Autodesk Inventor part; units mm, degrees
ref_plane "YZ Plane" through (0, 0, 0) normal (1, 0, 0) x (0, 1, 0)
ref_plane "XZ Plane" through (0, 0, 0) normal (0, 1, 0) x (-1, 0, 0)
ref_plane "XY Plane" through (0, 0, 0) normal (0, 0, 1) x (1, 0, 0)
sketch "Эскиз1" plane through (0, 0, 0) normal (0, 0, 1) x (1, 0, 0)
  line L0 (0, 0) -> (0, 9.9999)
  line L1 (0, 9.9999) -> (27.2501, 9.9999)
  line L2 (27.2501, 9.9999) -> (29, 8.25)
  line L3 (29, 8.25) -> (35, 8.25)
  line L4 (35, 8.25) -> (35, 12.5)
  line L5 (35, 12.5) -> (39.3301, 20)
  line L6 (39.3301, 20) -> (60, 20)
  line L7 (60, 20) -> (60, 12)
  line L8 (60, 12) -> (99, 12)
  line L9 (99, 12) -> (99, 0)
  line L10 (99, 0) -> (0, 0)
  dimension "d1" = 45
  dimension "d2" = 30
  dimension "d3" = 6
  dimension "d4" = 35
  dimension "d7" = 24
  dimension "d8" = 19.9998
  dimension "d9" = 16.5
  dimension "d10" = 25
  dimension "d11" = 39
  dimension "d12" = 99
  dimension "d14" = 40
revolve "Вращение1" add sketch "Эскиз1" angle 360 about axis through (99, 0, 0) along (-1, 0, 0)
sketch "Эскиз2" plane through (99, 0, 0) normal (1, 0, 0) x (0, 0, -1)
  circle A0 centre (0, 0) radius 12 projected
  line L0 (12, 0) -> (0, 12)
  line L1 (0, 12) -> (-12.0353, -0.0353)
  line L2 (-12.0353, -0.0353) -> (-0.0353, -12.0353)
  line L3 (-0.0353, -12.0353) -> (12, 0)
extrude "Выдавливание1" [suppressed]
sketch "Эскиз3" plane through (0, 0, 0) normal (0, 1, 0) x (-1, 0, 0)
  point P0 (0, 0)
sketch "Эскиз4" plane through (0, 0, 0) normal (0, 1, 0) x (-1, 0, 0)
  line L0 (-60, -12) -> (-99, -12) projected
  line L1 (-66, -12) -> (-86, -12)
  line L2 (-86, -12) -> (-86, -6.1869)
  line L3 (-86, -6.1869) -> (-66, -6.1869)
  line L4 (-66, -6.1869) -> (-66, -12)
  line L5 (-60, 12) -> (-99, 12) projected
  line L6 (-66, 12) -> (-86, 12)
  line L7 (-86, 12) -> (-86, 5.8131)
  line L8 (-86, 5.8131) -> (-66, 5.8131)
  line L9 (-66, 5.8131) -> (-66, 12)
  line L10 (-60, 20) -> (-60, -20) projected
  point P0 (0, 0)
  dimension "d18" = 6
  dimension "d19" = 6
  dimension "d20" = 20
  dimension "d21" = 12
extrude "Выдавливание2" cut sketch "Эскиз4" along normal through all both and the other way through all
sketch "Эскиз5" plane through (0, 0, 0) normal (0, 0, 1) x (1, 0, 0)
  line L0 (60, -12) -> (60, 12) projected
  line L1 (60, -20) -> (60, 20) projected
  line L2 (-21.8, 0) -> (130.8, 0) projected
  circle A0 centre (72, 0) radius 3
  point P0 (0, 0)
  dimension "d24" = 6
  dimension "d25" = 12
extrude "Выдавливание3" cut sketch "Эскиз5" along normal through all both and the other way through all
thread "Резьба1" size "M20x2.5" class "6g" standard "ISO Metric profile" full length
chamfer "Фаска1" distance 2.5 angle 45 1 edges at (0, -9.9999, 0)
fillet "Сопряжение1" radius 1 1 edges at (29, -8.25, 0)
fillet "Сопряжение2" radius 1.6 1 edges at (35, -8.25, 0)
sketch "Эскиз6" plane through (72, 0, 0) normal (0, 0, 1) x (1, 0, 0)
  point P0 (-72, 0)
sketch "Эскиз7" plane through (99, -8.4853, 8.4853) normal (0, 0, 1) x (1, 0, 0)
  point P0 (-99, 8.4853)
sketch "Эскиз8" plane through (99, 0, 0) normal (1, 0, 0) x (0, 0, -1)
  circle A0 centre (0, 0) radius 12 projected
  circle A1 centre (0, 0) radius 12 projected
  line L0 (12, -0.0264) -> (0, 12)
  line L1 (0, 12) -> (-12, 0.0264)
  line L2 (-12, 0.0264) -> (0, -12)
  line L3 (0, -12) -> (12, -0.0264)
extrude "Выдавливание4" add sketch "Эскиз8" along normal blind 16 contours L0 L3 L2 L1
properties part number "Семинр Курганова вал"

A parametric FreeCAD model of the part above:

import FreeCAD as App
import Part
import Sketcher
Q = App.Units.Quantity


def edges_at(feature, points):
    """Names of the edges that pass closest to the given points."""
    edges = feature.Shape.Edges
    near = lambda p: min(range(len(edges)), key=lambda i: edges[i].distToShape(Part.Vertex(*p))[0])
    return sorted({f"Edge{near(p) + 1}" for p in points})

doc = App.newDocument("Part")
body = doc.addObject("PartDesign::Body", "Body")

sketch1 = body.newObject("Sketcher::SketchObject", "Sketch")
sketch1.AttachmentSupport = (doc.getObject("XY_Plane"), [""])
sketch1.MapMode = "FlatFace"
sketch1.addGeometry(Part.LineSegment(App.Vector(0, 10, 0), App.Vector(0, 0, 0)), False)
sketch1.addGeometry(Part.LineSegment(App.Vector(0, 0, 0), App.Vector(99, 0, 0)), False)
sketch1.addGeometry(Part.LineSegment(App.Vector(99, 0, 0), App.Vector(99, 12, 0)), False)
sketch1.addGeometry(Part.LineSegment(App.Vector(99, 12, 0), App.Vector(60, 12, 0)), False)
sketch1.addGeometry(Part.LineSegment(App.Vector(60, 12, 0), App.Vector(60, 20, 0)), False)
sketch1.addGeometry(Part.LineSegment(App.Vector(60, 20, 0), App.Vector(39.3, 20, 0)), False)
sketch1.addGeometry(Part.LineSegment(App.Vector(39.3, 20, 0), App.Vector(35, 12.5, 0)), False)
sketch1.addGeometry(Part.LineSegment(App.Vector(35, 12.5, 0), App.Vector(35, 8.2, 0)), False)
sketch1.addGeometry(Part.LineSegment(App.Vector(35, 8.2, 0), App.Vector(29, 8.2, 0)), False)
sketch1.addGeometry(Part.LineSegment(App.Vector(29, 8.2, 0), App.Vector(27.3, 10, 0)), False)
sketch1.addGeometry(Part.LineSegment(App.Vector(27.3, 10, 0), App.Vector(0, 10, 0)), False)
sketch1.addConstraint(Sketcher.Constraint("Coincident", 0, 2, 1, 1))
sketch1.addConstraint(Sketcher.Constraint("Coincident", 1, 2, 2, 1))
sketch1.addConstraint(Sketcher.Constraint("Coincident", 2, 2, 3, 1))
sketch1.addConstraint(Sketcher.Constraint("Coincident", 3, 2, 4, 1))
sketch1.addConstraint(Sketcher.Constraint("Coincident", 4, 2, 5, 1))
sketch1.addConstraint(Sketcher.Constraint("Coincident", 5, 2, 6, 1))
sketch1.addConstraint(Sketcher.Constraint("Coincident", 6, 2, 7, 1))
sketch1.addConstraint(Sketcher.Constraint("Coincident", 7, 2, 8, 1))
sketch1.addConstraint(Sketcher.Constraint("Coincident", 8, 2, 9, 1))
sketch1.addConstraint(Sketcher.Constraint("Coincident", 9, 2, 10, 1))
sketch1.addConstraint(Sketcher.Constraint("Coincident", 10, 2, 0, 1))
sketch1.addConstraint(Sketcher.Constraint("Vertical", 0))
sketch1.addConstraint(Sketcher.Constraint("Horizontal", 1))
sketch1.addConstraint(Sketcher.Constraint("Vertical", 2))
sketch1.addConstraint(Sketcher.Constraint("Horizontal", 3))
sketch1.addConstraint(Sketcher.Constraint("Vertical", 4))
sketch1.addConstraint(Sketcher.Constraint("Horizontal", 5))
sketch1.addConstraint(Sketcher.Constraint("Vertical", 7))
sketch1.addConstraint(Sketcher.Constraint("Horizontal", 8))
sketch1.addConstraint(Sketcher.Constraint("Horizontal", 10))
sketch1.addConstraint(Sketcher.Constraint("Coincident", 0, 2, -1, 1))
sketch1.addConstraint(Sketcher.Constraint("DistanceX", 1, 1, 1, 2, 99.0))
sketch1.addConstraint(Sketcher.Constraint("DistanceX", 3, 2, 3, 1, 39.0))
sketch1.addConstraint(Sketcher.Constraint("DistanceX", 8, 2, 8, 1, 6.0))
sketch1.addConstraint(Sketcher.Constraint("DistanceY", -1, 1, 4, 2, 20.0))
sketch1.addConstraint(Sketcher.Constraint("DistanceX", -1, 1, 6, 2, 35.0))
sketch1.addConstraint(Sketcher.Constraint("DistanceY", 0, 2, 0, 1, 10.0))
sketch1.addConstraint(Sketcher.Constraint("DistanceY", 2, 1, 2, 2, 12.0))
sketch1.addConstraint(Sketcher.Constraint("Angle", 6, Q("-119.9998 deg")))
sketch1.addConstraint(Sketcher.Constraint("Angle", 9, Q("135 deg")))
sketch1.addConstraint(Sketcher.Constraint("DistanceX", 5, 2, 5, 1, 20.67))
sketch1.addConstraint(Sketcher.Constraint("DistanceX", 10, 2, 10, 1, 27.25))
revolution = body.newObject("PartDesign::Revolution", "Revolution")
revolution.Profile = sketch1
revolution.ReferenceAxis = (sketch1, ["H_Axis"])
revolution.Angle = 360

sketch2 = body.newObject("Sketcher::SketchObject", "Sketch001")
sketch2.AttachmentSupport = (doc.getObject("XZ_Plane"), [""])
sketch2.MapMode = "FlatFace"
sketch2.addGeometry(Part.LineSegment(App.Vector(86, -12, 0), App.Vector(66, -12, 0)), False)
sketch2.addGeometry(Part.LineSegment(App.Vector(66, -12, 0), App.Vector(66, -6, 0)), False)
sketch2.addGeometry(Part.LineSegment(App.Vector(66, -6, 0), App.Vector(86, -6, 0)), False)
sketch2.addGeometry(Part.LineSegment(App.Vector(86, -6, 0), App.Vector(86, -12, 0)), False)
sketch2.addGeometry(Part.LineSegment(App.Vector(66, 6, 0), App.Vector(66, 12, 0)), False)
sketch2.addGeometry(Part.LineSegment(App.Vector(66, 12, 0), App.Vector(86, 12, 0)), False)
sketch2.addGeometry(Part.LineSegment(App.Vector(86, 12, 0), App.Vector(86, 6, 0)), False)
sketch2.addGeometry(Part.LineSegment(App.Vector(86, 6, 0), App.Vector(66, 6, 0)), False)
sketch2.addConstraint(Sketcher.Constraint("Coincident", 0, 2, 1, 1))
sketch2.addConstraint(Sketcher.Constraint("Coincident", 1, 2, 2, 1))
sketch2.addConstraint(Sketcher.Constraint("Coincident", 2, 2, 3, 1))
sketch2.addConstraint(Sketcher.Constraint("Coincident", 3, 2, 0, 1))
sketch2.addConstraint(Sketcher.Constraint("Coincident", 4, 2, 5, 1))
sketch2.addConstraint(Sketcher.Constraint("Coincident", 5, 2, 6, 1))
sketch2.addConstraint(Sketcher.Constraint("Coincident", 6, 2, 7, 1))
sketch2.addConstraint(Sketcher.Constraint("Coincident", 7, 2, 4, 1))
sketch2.addConstraint(Sketcher.Constraint("Horizontal", 0))
sketch2.addConstraint(Sketcher.Constraint("Vertical", 1))
sketch2.addConstraint(Sketcher.Constraint("Horizontal", 2))
sketch2.addConstraint(Sketcher.Constraint("Vertical", 3))
sketch2.addConstraint(Sketcher.Constraint("Vertical", 4))
sketch2.addConstraint(Sketcher.Constraint("Horizontal", 5))
sketch2.addConstraint(Sketcher.Constraint("Vertical", 6))
sketch2.addConstraint(Sketcher.Constraint("Horizontal", 7))
sketch2.addConstraint(Sketcher.Constraint("Symmetric", 0, 2, 4, 2, -1))
sketch2.addConstraint(Sketcher.Constraint("Vertical", 3, 2, 5, 2))
sketch2.addConstraint(Sketcher.Constraint("DistanceX", 0, 2, 0, 1, 20.0))
sketch2.addConstraint(Sketcher.Constraint("DistanceY", 0, 2, -1, 1, 12.0))
sketch2.addConstraint(Sketcher.Constraint("DistanceY", 2, 2, 6, 2, 12.0))
sketch2.addConstraint(Sketcher.Constraint("DistanceX", -1, 1, 0, 2, 66.0))
sketch2.addConstraint(Sketcher.Constraint("DistanceY", 1, 1, 1, 2, 5.813))
pocket1 = body.newObject("PartDesign::Pocket", "Pocket")
pocket1.Profile = sketch2
pocket1.Type = "ThroughAll"
pocket1.Midplane = True

sketch3 = body.newObject("Sketcher::SketchObject", "Sketch002")
sketch3.AttachmentSupport = (doc.getObject("XY_Plane"), [""])
sketch3.MapMode = "FlatFace"
sketch3.addGeometry(Part.Circle(App.Vector(72, 0, 0), App.Vector(0, 0, 1), 3), False)
sketch3.addConstraint(Sketcher.Constraint("PointOnObject", 0, 3, -1))
sketch3.addConstraint(Sketcher.Constraint("Diameter", 0, 6.0))
sketch3.addConstraint(Sketcher.Constraint("DistanceX", -1, 1, 0, 3, 72.0))
pocket2 = body.newObject("PartDesign::Pocket", "Pocket001")
pocket2.Profile = sketch3
pocket2.Type = "ThroughAll"
pocket2.Midplane = True
doc.recompute()

chamfer = body.newObject("PartDesign::Chamfer", "Chamfer")
chamfer.Base = (pocket2, edges_at(pocket2, [(0, -10, 0)]))
chamfer.Size = 2.5
doc.recompute()

fillet = body.newObject("PartDesign::Fillet", "Fillet")
fillet.Base = (chamfer, edges_at(chamfer, [(29, -8.25, 0)]))
fillet.Radius = 1
doc.recompute()

fillet2 = body.newObject("PartDesign::Fillet", "Fillet001")
fillet2.Base = (fillet, edges_at(fillet, [(35, -8.25, 0)]))
fillet2.Radius = 1.6

sketch4 = body.newObject("Sketcher::SketchObject", "Sketch003")
sketch4.AttachmentSupport = (doc.getObject("YZ_Plane"), [""])
sketch4.MapMode = "FlatFace"
sketch4.AttachmentOffset = App.Placement(App.Vector(0, 0, 99), App.Rotation())
sketch4.addGeometry(Part.LineSegment(App.Vector(0, -12, 0), App.Vector(12, 0, 0)), False)
sketch4.addGeometry(Part.LineSegment(App.Vector(12, 0, 0), App.Vector(0, 12, 0)), False)
sketch4.addGeometry(Part.LineSegment(App.Vector(0, 12, 0), App.Vector(-12, 0, 0)), False)
sketch4.addGeometry(Part.LineSegment(App.Vector(-12, 0, 0), App.Vector(0, -12, 0)), False)
sketch4.addConstraint(Sketcher.Constraint("Coincident", 0, 2, 1, 1))
sketch4.addConstraint(Sketcher.Constraint("Coincident", 1, 2, 2, 1))
sketch4.addConstraint(Sketcher.Constraint("Coincident", 2, 2, 3, 1))
sketch4.addConstraint(Sketcher.Constraint("Coincident", 3, 2, 0, 1))
sketch4.addConstraint(Sketcher.Constraint("Symmetric", 0, 2, 2, 2, -1, 1))
sketch4.addConstraint(Sketcher.Constraint("Symmetric", 1, 2, 3, 2, -1, 1))
sketch4.addConstraint(Sketcher.Constraint("PointOnObject", 0, 2, -1))
sketch4.addConstraint(Sketcher.Constraint("Perpendicular", 0, 1))
sketch4.addConstraint(Sketcher.Constraint("DistanceX", -1, 1, 0, 2, 12.0))
sketch4.addConstraint(Sketcher.Constraint("Distance", 1, 16.952))
pad1 = body.newObject("PartDesign::Pad", "Pad")
pad1.Profile = sketch4
pad1.Length = 16

doc.recompute()
